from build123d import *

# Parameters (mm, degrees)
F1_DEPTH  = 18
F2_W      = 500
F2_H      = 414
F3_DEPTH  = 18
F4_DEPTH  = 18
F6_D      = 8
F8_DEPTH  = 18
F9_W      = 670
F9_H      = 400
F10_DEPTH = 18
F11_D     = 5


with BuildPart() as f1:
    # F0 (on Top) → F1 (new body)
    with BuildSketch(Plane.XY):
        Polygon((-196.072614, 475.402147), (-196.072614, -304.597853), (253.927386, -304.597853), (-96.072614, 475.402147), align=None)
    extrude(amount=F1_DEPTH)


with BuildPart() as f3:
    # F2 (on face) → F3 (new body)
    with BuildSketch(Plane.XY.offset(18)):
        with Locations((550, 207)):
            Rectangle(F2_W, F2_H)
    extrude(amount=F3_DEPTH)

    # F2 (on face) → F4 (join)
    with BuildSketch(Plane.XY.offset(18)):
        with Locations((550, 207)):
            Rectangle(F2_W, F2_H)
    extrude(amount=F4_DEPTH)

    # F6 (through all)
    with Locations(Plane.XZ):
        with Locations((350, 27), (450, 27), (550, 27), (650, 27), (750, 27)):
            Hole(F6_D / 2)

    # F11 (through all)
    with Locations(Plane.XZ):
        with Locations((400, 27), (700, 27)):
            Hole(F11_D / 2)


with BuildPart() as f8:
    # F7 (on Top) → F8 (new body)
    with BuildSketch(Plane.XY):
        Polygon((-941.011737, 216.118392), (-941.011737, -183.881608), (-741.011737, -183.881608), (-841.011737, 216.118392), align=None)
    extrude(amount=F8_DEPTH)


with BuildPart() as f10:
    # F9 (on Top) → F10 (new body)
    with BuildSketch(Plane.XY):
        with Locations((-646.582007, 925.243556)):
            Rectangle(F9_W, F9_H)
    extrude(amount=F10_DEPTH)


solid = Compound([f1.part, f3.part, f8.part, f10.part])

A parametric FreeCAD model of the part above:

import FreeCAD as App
import Part
import Sketcher

V = App.Vector

doc = App.newDocument("Part")
body = doc.addObject("PartDesign::Body", "Body")

# Sketch on XY plane
sketch1 = doc.addObject("Sketcher::SketchObject", "Sketch")
body.addObject(sketch1)
sketch1.AttachmentSupport = (doc.XY_Plane, [""])
sketch1.MapMode = "FlatFace"
sketch1.addGeometry(Part.LineSegment(V(-196, 475, 0), V(-196, -305, 0)), False)
sketch1.addGeometry(Part.LineSegment(V(-196, -305, 0), V(254, -305, 0)), False)
sketch1.addGeometry(Part.LineSegment(V(254, -305, 0), V(-96, 475, 0)), False)
sketch1.addGeometry(Part.LineSegment(V(-96, 475, 0), V(-196, 475, 0)), False)
sketch1.addConstraint(Sketcher.Constraint("Coincident", 0, 2, 1, 1))
sketch1.addConstraint(Sketcher.Constraint("Coincident", 1, 2, 2, 1))
sketch1.addConstraint(Sketcher.Constraint("Coincident", 2, 2, 3, 1))
sketch1.addConstraint(Sketcher.Constraint("Coincident", 3, 2, 0, 1))
sketch1.addConstraint(Sketcher.Constraint("Vertical", 0))
sketch1.addConstraint(Sketcher.Constraint("Horizontal", 1))
sketch1.addConstraint(Sketcher.Constraint("Horizontal", 3))
sketch1.addConstraint(Sketcher.Constraint("DistanceX", 1, 1, 1, 2, 450.0))
sketch1.addConstraint(Sketcher.Constraint("DistanceX", 3, 2, 3, 1, 100.0))
sketch1.addConstraint(Sketcher.Constraint("DistanceY", 0, 2, 0, 1, 780.0))
sketch1.addConstraint(Sketcher.Constraint("DistanceX", 0, 2, -1, 1, 196.072614))
sketch1.addConstraint(Sketcher.Constraint("DistanceY", 0, 2, -1, 1, 304.597853))
pad1 = doc.addObject("PartDesign::Pad", "Pad")
body.addObject(pad1)
pad1.Profile = sketch1
pad1.Length = 18
body2 = doc.addObject("PartDesign::Body", "Body001")

# Sketch on XY plane
sketch2 = doc.addObject("Sketcher::SketchObject", "Sketch001")
body2.addObject(sketch2)
sketch2.AttachmentSupport = (doc.getObject("XY_Plane001"), [""])
sketch2.MapMode = "FlatFace"
sketch2.AttachmentOffset = App.Placement(V(0, 0, 18), App.Rotation())
sketch2.addGeometry(Part.LineSegment(V(300, 414, 0), V(300, 0, 0)), False)
sketch2.addGeometry(Part.LineSegment(V(300, 0, 0), V(800, 0, 0)), False)
sketch2.addGeometry(Part.LineSegment(V(800, 0, 0), V(800, 414, 0)), False)
sketch2.addGeometry(Part.LineSegment(V(800, 414, 0), V(300, 414, 0)), False)
sketch2.addConstraint(Sketcher.Constraint("Coincident", 0, 2, 1, 1))
sketch2.addConstraint(Sketcher.Constraint("Coincident", 1, 2, 2, 1))
sketch2.addConstraint(Sketcher.Constraint("Coincident", 2, 2, 3, 1))
sketch2.addConstraint(Sketcher.Constraint("Coincident", 3, 2, 0, 1))
sketch2.addConstraint(Sketcher.Constraint("Vertical", 0))
sketch2.addConstraint(Sketcher.Constraint("Horizontal", 1))
sketch2.addConstraint(Sketcher.Constraint("Vertical", 2))
sketch2.addConstraint(Sketcher.Constraint("Horizontal", 3))
sketch2.addConstraint(Sketcher.Constraint("PointOnObject", 0, 2, -1))
sketch2.addConstraint(Sketcher.Constraint("DistanceX", 1, 1, 1, 2, 500.0))
sketch2.addConstraint(Sketcher.Constraint("DistanceY", 0, 2, 0, 1, 414.0))
sketch2.addConstraint(Sketcher.Constraint("DistanceX", -1, 1, 0, 2, 300.0))
pad2 = doc.addObject("PartDesign::Pad", "Pad001")
body2.addObject(pad2)
pad2.Profile = sketch2
pad2.Length = 18

# Sketch on XY plane
sketch3 = doc.addObject("Sketcher::SketchObject", "Sketch002")
body2.addObject(sketch3)
sketch3.AttachmentSupport = (doc.getObject("XY_Plane001"), [""])
sketch3.MapMode = "FlatFace"
sketch3.AttachmentOffset = App.Placement(V(0, 0, 18), App.Rotation())
sketch3.addGeometry(Part.LineSegment(V(300, 414, 0), V(300, 0, 0)), False)
sketch3.addGeometry(Part.LineSegment(V(300, 0, 0), V(800, 0, 0)), False)
sketch3.addGeometry(Part.LineSegment(V(800, 0, 0), V(800, 414, 0)), False)
sketch3.addGeometry(Part.LineSegment(V(800, 414, 0), V(300, 414, 0)), False)
sketch3.addConstraint(Sketcher.Constraint("Coincident", 0, 2, 1, 1))
sketch3.addConstraint(Sketcher.Constraint("Coincident", 1, 2, 2, 1))
sketch3.addConstraint(Sketcher.Constraint("Coincident", 2, 2, 3, 1))
sketch3.addConstraint(Sketcher.Constraint("Coincident", 3, 2, 0, 1))
sketch3.addConstraint(Sketcher.Constraint("Vertical", 0))
sketch3.addConstraint(Sketcher.Constraint("Horizontal", 1))
sketch3.addConstraint(Sketcher.Constraint("Vertical", 2))
sketch3.addConstraint(Sketcher.Constraint("Horizontal", 3))
sketch3.addConstraint(Sketcher.Constraint("PointOnObject", 0, 2, -1))
sketch3.addConstraint(Sketcher.Constraint("DistanceX", 1, 1, 1, 2, 500.0))
sketch3.addConstraint(Sketcher.Constraint("DistanceY", 0, 2, 0, 1, 414.0))
sketch3.addConstraint(Sketcher.Constraint("DistanceX", -1, 1, 0, 2, 300.0))
pad3 = doc.addObject("PartDesign::Pad", "Pad002")
body2.addObject(pad3)
pad3.Profile = sketch3
pad3.Length = 18

# Sketch on XZ plane
sketch4 = doc.addObject("Sketcher::SketchObject", "Sketch003")
body2.addObject(sketch4)
sketch4.AttachmentSupport = (doc.getObject("XZ_Plane001"), [""])
sketch4.MapMode = "FlatFace"
sketch4.addGeometry(Part.Circle(V(350, 27, 0), V(0, 0, 1), 4), False)
sketch4.addGeometry(Part.Circle(V(450, 27, 0), V(0, 0, 1), 4), False)
sketch4.addGeometry(Part.Circle(V(550, 27, 0), V(0, 0, 1), 4), False)
sketch4.addGeometry(Part.Circle(V(650, 27, 0), V(0, 0, 1), 4), False)
sketch4.addGeometry(Part.Circle(V(750, 27, 0), V(0, 0, 1), 4), False)
sketch4.addConstraint(Sketcher.Constraint("Equal", 0, 1))
sketch4.addConstraint(Sketcher.Constraint("Equal", 1, 2))
sketch4.addConstraint(Sketcher.Constraint("Equal", 2, 3))
sketch4.addConstraint(Sketcher.Constraint("Equal", 3, 4))
sketch4.addConstraint(Sketcher.Constraint("Horizontal", 0, 3, 1, 3))
sketch4.addConstraint(Sketcher.Constraint("Horizontal", 1, 3, 2, 3))
sketch4.addConstraint(Sketcher.Constraint("Horizontal", 2, 3, 3, 3))
sketch4.addConstraint(Sketcher.Constraint("Horizontal", 3, 3, 4, 3))
sketch4.addConstraint(Sketcher.Constraint("Diameter", 0, 8.0))
sketch4.addConstraint(Sketcher.Constraint("DistanceX", -1, 1, 0, 3, 350.0))
sketch4.addConstraint(Sketcher.Constraint("DistanceY", -1, 1, 0, 3, 27.0))
sketch4.addConstraint(Sketcher.Constraint("DistanceX", -1, 1, 1, 3, 450.0))
sketch4.addConstraint(Sketcher.Constraint("DistanceX", -1, 1, 2, 3, 550.0))
sketch4.addConstraint(Sketcher.Constraint("DistanceX", -1, 1, 3, 3, 650.0))
sketch4.addConstraint(Sketcher.Constraint("DistanceX", -1, 1, 4, 3, 750.0))
doc.recompute()
hole = doc.addObject("PartDesign::Hole", "Hole")
body2.addObject(hole)
hole.Profile = sketch4
hole.ThreadType = "None"
hole.Diameter = 8
hole.DepthType = "ThroughAll"

# Sketch on XZ plane
sketch5 = doc.addObject("Sketcher::SketchObject", "Sketch004")
body2.addObject(sketch5)
sketch5.AttachmentSupport = (doc.getObject("XZ_Plane001"), [""])
sketch5.MapMode = "FlatFace"
sketch5.addGeometry(Part.Circle(V(400, 27, 0), V(0, 0, 1), 2.5), False)
sketch5.addGeometry(Part.Circle(V(700, 27, 0), V(0, 0, 1), 2.5), False)
sketch5.addConstraint(Sketcher.Constraint("Equal", 0, 1))
sketch5.addConstraint(Sketcher.Constraint("Horizontal", 0, 3, 1, 3))
sketch5.addConstraint(Sketcher.Constraint("Diameter", 0, 5.0))
sketch5.addConstraint(Sketcher.Constraint("DistanceX", -1, 1, 0, 3, 400.0))
sketch5.addConstraint(Sketcher.Constraint("DistanceY", -1, 1, 0, 3, 27.0))
sketch5.addConstraint(Sketcher.Constraint("DistanceX", -1, 1, 1, 3, 700.0))
doc.recompute()
hole2 = doc.addObject("PartDesign::Hole", "Hole001")
body2.addObject(hole2)
hole2.Profile = sketch5
hole2.ThreadType = "None"
hole2.Diameter = 5
hole2.DepthType = "ThroughAll"
body3 = doc.addObject("PartDesign::Body", "Body002")

# Sketch on XY plane
sketch6 = doc.addObject("Sketcher::SketchObject", "Sketch005")
body3.addObject(sketch6)
sketch6.AttachmentSupport = (doc.getObject("XY_Plane002"), [""])
sketch6.MapMode = "FlatFace"
sketch6.addGeometry(Part.LineSegment(V(-941, 216, 0), V(-941, -184, 0)), False)
sketch6.addGeometry(Part.LineSegment(V(-941, -184, 0), V(-741, -184, 0)), False)
sketch6.addGeometry(Part.LineSegment(V(-741, -184, 0), V(-841, 216, 0)), False)
sketch6.addGeometry(Part.LineSegment(V(-841, 216, 0), V(-941, 216, 0)), False)
sketch6.addConstraint(Sketcher.Constraint("Coincident", 0, 2, 1, 1))
sketch6.addConstraint(Sketcher.Constraint("Coincident", 1, 2, 2, 1))
sketch6.addConstraint(Sketcher.Constraint("Coincident", 2, 2, 3, 1))
sketch6.addConstraint(Sketcher.Constraint("Coincident", 3, 2, 0, 1))
sketch6.addConstraint(Sketcher.Constraint("Vertical", 0))
sketch6.addConstraint(Sketcher.Constraint("Horizontal", 1))
sketch6.addConstraint(Sketcher.Constraint("Horizontal", 3))
sketch6.addConstraint(Sketcher.Constraint("DistanceX", 1, 1, 1, 2, 200.0))
sketch6.addConstraint(Sketcher.Constraint("DistanceX", 3, 2, 3, 1, 100.0))
sketch6.addConstraint(Sketcher.Constraint("DistanceY", 0, 2, 0, 1, 400.0))
sketch6.addConstraint(Sketcher.Constraint("DistanceY", 0, 2, -1, 1, 183.881608))
sketch6.addConstraint(Sketcher.Constraint("DistanceX", 0, 2, -1, 1, 941.011737))
pad4 = doc.addObject("PartDesign::Pad", "Pad003")
body3.addObject(pad4)
pad4.Profile = sketch6
pad4.Length = 18
body4 = doc.addObject("PartDesign::Body", "Body003")

# Sketch on XY plane
sketch7 = doc.addObject("Sketcher::SketchObject", "Sketch006")
body4.addObject(sketch7)
sketch7.AttachmentSupport = (doc.getObject("XY_Plane003"), [""])
sketch7.MapMode = "FlatFace"
sketch7.addGeometry(Part.LineSegment(V(-982, 1125, 0), V(-982, 725, 0)), False)
sketch7.addGeometry(Part.LineSegment(V(-982, 725, 0), V(-312, 725, 0)), False)
sketch7.addGeometry(Part.LineSegment(V(-312, 725, 0), V(-312, 1125, 0)), False)
sketch7.addGeometry(Part.LineSegment(V(-312, 1125, 0), V(-982, 1125, 0)), False)
sketch7.addConstraint(Sketcher.Constraint("Coincident", 0, 2, 1, 1))
sketch7.addConstraint(Sketcher.Constraint("Coincident", 1, 2, 2, 1))
sketch7.addConstraint(Sketcher.Constraint("Coincident", 2, 2, 3, 1))
sketch7.addConstraint(Sketcher.Constraint("Coincident", 3, 2, 0, 1))
sketch7.addConstraint(Sketcher.Constraint("Vertical", 0))
sketch7.addConstraint(Sketcher.Constraint("Horizontal", 1))
sketch7.addConstraint(Sketcher.Constraint("Vertical", 2))
sketch7.addConstraint(Sketcher.Constraint("Horizontal", 3))
sketch7.addConstraint(Sketcher.Constraint("DistanceX", 1, 1, 1, 2, 670.0))
sketch7.addConstraint(Sketcher.Constraint("DistanceY", 0, 2, 0, 1, 400.0))
sketch7.addConstraint(Sketcher.Constraint("DistanceX", 0, 2, -1, 1, 981.582007))
sketch7.addConstraint(Sketcher.Constraint("DistanceY", -1, 1, 0, 2, 725.243556))
pad5 = doc.addObject("PartDesign::Pad", "Pad004")
body4.addObject(pad5)
pad5.Profile = sketch7
pad5.Length = 18

doc.recompute()
